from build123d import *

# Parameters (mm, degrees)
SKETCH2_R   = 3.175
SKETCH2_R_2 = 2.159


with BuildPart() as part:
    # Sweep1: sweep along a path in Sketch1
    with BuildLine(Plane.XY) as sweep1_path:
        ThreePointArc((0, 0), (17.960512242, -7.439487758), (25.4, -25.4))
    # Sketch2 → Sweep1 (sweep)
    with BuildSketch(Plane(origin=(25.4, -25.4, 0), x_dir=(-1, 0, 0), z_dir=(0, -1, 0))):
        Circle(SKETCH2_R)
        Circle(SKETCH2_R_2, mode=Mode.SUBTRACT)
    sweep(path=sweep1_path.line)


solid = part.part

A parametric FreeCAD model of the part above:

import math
import FreeCAD as App
import Part
import Sketcher
Q = App.Units.Quantity

doc = App.newDocument("Part")
body = doc.addObject("PartDesign::Body", "Body")

sketch1 = doc.addObject("Sketcher::SketchObject", "Sketch")
body.addObject(sketch1)
sketch1.AttachmentSupport = (doc.XZ_Plane, [""])
sketch1.MapMode = "FlatFace"
sketch1.AttachmentOffset = App.Placement(App.Vector(0, 0, 1 * 25.4), App.Rotation())
sketch1.addGeometry(Part.Circle(App.Vector(25.4, 0, 0), App.Vector(0, 0, 1), 3.175), False)
sketch1.addGeometry(Part.Circle(App.Vector(25.4, 0, 0), App.Vector(0, 0, 1), 2.159), False)
sketch1.addConstraint(Sketcher.Constraint("Coincident", 1, 3, 0, 3))
sketch1.addConstraint(Sketcher.Constraint("PointOnObject", 0, 3, -1))
sketch1.addConstraint(Sketcher.Constraint("Diameter", 0, Q("0.25 in")))
sketch1.addConstraint(Sketcher.Constraint("Diameter", 1, Q("0.17 in")))
sketch1.addConstraint(Sketcher.Constraint("DistanceX", -1, 1, 0, 3, Q("1 in")))

sketch2 = doc.addObject("Sketcher::SketchObject", "Sketch001")
body.addObject(sketch2)
sketch2.AttachmentSupport = (doc.XY_Plane, [""])
sketch2.MapMode = "FlatFace"
sketch2.addGeometry(Part.ArcOfCircle(Part.Circle(App.Vector(0, -25.4, 0), App.Vector(0, 0, 1), 25.4), math.radians(0), math.radians(90)), False)
sketch2.addConstraint(Sketcher.Constraint("Coincident", 0, 2, -1, 1))
sketch2.addConstraint(Sketcher.Constraint("PointOnObject", 0, 3, -2))
sketch2.addConstraint(Sketcher.Constraint("Radius", 0, Q("1 in")))
sketch2.addConstraint(Sketcher.Constraint("DistanceY", 0, 1, -1, 1, Q("1 in")))
doc.recompute()

additivepipe = doc.addObject("PartDesign::AdditivePipe", "AdditivePipe")
body.addObject(additivepipe)
additivepipe.Profile = sketch1
additivepipe.Spine = (sketch2, ["Edge1"])

doc.recompute()
